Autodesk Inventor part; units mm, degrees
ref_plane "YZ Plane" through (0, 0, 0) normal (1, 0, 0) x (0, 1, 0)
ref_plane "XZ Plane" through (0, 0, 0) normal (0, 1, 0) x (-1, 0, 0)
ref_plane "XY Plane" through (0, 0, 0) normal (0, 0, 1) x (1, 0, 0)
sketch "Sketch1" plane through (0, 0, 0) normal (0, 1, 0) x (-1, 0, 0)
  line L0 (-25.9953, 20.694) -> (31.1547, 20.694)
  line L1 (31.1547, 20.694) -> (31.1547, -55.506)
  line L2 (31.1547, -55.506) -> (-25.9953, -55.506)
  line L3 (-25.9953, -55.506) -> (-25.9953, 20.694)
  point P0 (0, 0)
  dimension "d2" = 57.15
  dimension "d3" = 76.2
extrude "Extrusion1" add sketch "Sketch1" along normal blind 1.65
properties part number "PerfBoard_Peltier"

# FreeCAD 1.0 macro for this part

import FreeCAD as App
import Part
import Sketcher
Q = App.Units.Quantity

doc = App.newDocument("Part")
body = doc.addObject("PartDesign::Body", "Body")

sketch1 = body.newObject("Sketcher::SketchObject", "Sketch")
sketch1.AttachmentSupport = (doc.getObject("XZ_Plane"), [""])
sketch1.MapMode = "FlatFace"
sketch1.addGeometry([
    Part.LineSegment(App.Vector(-31, 21, 0), App.Vector(26, 21, 0)),
    Part.LineSegment(App.Vector(26, 21, 0), App.Vector(26, -56, 0)),
    Part.LineSegment(App.Vector(26, -56, 0), App.Vector(-31, -56, 0)),
    Part.LineSegment(App.Vector(-31, -56, 0), App.Vector(-31, 21, 0)),
], False)
sketch1.addConstraint([
    Sketcher.Constraint("Coincident", 0, 2, 1, 1),
    Sketcher.Constraint("Coincident", 1, 2, 2, 1),
    Sketcher.Constraint("Coincident", 2, 2, 3, 1),
    Sketcher.Constraint("Coincident", 3, 2, 0, 1),
    Sketcher.Constraint("Horizontal", 0),
    Sketcher.Constraint("Vertical", 1),
    Sketcher.Constraint("Horizontal", 2),
    Sketcher.Constraint("Vertical", 3),
    Sketcher.Constraint("DistanceY", 1, 2, 1, 1, Q("3 in")),
    Sketcher.Constraint("DistanceX", 0, 1, 0, 2, Q("2.25 in")),
    Sketcher.Constraint("DistanceX", -1, 1, 0, 2, 25.9953),
    Sketcher.Constraint("DistanceY", -1, 1, 0, 2, 20.694),
])
pad1 = body.newObject("PartDesign::Pad", "Pad")
pad1.Profile = sketch1
pad1.Length = 1.65
pad1.Reversed = True

doc.recompute()
